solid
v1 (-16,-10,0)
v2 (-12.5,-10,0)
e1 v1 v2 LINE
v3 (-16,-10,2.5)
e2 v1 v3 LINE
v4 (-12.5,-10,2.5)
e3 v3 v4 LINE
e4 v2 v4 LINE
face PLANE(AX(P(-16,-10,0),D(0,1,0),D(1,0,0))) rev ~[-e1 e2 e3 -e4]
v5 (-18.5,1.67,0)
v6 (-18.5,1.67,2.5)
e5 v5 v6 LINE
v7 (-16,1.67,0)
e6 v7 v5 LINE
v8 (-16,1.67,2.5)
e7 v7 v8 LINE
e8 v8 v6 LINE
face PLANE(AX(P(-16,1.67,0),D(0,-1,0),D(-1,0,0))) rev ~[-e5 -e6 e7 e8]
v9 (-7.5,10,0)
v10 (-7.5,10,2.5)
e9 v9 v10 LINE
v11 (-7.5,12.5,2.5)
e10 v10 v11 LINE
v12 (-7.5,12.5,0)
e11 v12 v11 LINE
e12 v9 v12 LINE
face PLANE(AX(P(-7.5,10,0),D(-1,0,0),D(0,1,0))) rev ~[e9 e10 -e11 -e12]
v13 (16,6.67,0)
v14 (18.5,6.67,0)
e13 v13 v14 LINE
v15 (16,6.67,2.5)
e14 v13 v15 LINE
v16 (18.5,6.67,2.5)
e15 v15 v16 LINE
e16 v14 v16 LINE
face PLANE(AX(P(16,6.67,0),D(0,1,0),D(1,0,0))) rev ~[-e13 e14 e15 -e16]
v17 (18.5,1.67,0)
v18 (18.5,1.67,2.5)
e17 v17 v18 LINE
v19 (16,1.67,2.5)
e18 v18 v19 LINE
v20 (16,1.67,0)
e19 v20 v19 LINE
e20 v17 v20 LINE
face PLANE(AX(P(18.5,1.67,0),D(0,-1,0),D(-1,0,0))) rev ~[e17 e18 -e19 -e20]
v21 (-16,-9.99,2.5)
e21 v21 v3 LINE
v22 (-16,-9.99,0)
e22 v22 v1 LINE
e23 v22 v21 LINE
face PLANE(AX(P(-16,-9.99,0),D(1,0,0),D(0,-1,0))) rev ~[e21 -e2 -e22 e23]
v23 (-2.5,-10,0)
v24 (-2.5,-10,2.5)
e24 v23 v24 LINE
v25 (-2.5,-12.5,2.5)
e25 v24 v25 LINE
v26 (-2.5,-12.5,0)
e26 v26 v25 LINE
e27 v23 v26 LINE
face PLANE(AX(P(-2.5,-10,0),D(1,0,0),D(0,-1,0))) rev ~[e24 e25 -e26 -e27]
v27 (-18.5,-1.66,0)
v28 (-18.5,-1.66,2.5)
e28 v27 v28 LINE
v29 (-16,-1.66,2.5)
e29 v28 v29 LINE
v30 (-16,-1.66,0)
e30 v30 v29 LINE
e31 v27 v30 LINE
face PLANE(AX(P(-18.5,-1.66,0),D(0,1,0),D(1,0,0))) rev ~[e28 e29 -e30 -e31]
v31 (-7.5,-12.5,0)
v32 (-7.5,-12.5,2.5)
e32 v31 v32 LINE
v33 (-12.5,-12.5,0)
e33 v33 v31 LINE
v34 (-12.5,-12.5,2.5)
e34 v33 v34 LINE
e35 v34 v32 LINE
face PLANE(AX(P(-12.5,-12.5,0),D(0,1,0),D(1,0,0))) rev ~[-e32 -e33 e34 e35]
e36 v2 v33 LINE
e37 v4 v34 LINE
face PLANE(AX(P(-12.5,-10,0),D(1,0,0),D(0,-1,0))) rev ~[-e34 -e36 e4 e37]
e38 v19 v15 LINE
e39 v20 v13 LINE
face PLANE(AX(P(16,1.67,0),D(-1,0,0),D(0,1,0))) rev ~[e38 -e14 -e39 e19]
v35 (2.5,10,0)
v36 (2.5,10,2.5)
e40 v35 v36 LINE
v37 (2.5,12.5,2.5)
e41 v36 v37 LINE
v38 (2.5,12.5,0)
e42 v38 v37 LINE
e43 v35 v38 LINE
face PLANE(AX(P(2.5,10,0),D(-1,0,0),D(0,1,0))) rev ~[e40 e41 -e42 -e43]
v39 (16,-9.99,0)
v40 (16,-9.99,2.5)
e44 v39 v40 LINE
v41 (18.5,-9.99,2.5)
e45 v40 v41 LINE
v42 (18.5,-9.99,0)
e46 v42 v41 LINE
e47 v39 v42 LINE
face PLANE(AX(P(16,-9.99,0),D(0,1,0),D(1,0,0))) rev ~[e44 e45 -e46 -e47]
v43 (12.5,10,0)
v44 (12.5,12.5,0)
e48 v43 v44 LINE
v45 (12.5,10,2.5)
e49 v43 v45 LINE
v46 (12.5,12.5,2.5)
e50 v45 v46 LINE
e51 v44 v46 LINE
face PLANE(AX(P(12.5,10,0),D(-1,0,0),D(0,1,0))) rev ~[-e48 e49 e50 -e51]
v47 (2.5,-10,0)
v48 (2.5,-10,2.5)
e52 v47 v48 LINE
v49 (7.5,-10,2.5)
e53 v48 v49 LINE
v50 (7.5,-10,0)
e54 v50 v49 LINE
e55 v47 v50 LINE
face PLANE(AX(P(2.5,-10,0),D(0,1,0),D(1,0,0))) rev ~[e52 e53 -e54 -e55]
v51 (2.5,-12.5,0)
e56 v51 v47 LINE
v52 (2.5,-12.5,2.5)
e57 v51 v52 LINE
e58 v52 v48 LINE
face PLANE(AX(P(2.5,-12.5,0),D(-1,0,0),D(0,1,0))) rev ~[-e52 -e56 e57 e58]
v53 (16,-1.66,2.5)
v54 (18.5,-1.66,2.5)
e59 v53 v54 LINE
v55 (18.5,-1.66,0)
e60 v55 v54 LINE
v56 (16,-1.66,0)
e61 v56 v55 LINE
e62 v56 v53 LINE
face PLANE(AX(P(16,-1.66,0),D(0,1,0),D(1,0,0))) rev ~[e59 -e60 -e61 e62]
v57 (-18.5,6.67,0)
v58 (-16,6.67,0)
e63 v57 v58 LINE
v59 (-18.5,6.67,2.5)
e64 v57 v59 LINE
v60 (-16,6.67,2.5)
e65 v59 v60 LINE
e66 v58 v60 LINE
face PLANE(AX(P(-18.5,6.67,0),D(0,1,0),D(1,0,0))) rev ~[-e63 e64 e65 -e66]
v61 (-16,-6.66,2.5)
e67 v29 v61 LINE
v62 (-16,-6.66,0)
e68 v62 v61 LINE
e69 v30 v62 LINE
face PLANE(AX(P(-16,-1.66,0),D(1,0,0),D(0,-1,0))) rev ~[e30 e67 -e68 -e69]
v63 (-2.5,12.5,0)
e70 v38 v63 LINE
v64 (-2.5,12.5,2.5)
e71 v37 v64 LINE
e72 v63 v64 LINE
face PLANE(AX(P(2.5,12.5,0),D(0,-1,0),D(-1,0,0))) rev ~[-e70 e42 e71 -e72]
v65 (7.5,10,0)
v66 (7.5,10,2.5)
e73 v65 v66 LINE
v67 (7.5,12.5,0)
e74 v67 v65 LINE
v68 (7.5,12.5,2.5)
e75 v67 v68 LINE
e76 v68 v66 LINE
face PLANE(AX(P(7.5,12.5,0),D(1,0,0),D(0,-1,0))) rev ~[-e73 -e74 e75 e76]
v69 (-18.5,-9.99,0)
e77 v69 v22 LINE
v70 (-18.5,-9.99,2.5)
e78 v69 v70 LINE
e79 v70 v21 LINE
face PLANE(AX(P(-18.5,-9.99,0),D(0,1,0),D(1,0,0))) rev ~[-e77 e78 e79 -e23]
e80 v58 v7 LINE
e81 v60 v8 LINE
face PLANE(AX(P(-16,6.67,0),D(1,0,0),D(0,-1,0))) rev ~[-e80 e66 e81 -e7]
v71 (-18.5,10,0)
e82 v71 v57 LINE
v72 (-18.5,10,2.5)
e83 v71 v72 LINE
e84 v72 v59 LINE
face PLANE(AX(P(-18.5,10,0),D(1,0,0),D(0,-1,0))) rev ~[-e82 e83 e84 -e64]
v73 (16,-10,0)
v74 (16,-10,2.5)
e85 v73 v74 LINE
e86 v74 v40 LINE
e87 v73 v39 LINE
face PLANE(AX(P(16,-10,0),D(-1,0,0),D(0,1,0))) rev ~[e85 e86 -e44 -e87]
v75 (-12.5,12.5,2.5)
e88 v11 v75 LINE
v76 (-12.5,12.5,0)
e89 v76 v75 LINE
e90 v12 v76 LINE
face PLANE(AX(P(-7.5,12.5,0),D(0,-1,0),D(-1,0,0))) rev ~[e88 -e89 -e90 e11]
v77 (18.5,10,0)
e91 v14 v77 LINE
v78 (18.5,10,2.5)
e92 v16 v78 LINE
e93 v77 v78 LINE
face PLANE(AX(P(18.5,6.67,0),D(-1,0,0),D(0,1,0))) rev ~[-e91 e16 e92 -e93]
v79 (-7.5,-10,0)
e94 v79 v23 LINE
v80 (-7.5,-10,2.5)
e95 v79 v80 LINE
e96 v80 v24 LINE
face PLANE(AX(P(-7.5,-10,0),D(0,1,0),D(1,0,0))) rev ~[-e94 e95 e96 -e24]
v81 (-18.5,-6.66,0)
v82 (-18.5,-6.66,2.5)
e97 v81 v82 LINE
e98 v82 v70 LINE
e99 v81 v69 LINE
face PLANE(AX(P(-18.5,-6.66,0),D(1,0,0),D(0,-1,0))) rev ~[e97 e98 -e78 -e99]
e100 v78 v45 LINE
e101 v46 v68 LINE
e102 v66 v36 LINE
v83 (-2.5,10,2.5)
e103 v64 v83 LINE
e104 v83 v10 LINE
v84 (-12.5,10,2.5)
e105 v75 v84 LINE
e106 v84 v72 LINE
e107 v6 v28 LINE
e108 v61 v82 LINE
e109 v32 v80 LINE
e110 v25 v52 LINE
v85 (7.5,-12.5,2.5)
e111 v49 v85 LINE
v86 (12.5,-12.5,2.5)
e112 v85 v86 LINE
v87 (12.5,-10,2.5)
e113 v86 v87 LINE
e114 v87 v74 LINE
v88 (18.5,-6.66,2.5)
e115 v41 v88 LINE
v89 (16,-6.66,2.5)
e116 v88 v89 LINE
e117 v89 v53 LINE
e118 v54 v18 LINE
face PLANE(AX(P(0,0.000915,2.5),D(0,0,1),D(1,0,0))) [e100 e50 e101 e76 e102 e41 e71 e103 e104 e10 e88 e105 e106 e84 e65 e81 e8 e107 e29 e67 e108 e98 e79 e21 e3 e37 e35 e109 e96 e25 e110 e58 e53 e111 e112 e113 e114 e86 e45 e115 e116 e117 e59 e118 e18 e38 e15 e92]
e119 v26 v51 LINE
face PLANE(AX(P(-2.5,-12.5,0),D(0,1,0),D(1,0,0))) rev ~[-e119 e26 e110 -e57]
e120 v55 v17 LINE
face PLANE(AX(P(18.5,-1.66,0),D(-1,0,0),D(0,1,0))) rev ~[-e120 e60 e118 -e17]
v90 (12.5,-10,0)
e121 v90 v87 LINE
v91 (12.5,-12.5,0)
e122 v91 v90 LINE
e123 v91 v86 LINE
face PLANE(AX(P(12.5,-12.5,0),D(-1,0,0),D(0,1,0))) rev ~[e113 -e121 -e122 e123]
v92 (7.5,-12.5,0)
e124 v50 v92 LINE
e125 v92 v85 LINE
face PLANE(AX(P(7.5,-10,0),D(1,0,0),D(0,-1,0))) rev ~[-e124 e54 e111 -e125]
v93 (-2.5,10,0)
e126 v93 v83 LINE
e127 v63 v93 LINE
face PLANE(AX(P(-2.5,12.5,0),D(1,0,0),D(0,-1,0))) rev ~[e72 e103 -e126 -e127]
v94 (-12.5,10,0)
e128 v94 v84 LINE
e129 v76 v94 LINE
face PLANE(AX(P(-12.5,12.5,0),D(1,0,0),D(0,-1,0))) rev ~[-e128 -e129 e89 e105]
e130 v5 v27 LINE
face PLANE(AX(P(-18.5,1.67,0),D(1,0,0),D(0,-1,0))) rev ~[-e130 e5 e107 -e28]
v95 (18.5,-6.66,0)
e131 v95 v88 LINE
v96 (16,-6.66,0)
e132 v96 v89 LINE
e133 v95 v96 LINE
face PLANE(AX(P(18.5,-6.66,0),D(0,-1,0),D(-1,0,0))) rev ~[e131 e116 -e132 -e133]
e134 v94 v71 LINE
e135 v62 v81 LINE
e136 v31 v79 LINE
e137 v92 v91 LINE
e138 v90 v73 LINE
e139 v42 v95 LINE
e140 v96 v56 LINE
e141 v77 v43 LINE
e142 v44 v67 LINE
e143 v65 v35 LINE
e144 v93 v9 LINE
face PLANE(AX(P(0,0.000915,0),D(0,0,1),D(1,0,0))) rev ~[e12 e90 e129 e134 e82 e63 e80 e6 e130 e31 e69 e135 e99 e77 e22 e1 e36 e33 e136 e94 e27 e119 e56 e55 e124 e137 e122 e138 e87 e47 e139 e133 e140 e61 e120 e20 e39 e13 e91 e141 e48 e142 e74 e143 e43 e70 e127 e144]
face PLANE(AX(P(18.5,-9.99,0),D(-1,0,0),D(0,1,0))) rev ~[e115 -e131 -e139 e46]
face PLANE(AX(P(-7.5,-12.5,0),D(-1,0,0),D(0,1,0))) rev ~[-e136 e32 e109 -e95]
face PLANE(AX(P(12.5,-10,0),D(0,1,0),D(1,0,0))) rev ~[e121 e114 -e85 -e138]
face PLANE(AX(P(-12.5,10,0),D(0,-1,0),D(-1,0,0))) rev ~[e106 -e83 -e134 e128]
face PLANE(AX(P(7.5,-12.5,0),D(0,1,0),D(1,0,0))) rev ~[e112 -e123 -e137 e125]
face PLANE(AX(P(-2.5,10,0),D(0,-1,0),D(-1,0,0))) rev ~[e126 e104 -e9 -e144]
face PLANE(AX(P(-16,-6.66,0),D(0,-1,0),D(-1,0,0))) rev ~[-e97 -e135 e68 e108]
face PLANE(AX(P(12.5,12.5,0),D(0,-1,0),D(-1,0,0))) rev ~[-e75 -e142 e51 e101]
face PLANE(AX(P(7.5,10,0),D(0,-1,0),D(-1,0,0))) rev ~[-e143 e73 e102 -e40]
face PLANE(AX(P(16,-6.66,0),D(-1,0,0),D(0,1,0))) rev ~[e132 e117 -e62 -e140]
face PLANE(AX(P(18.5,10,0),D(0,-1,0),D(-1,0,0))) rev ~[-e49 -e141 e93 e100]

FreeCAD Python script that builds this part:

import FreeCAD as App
import Part
import Sketcher
from FreeCAD import Vector
Q = App.Units.Quantity

doc = App.newDocument("Part")
body = doc.addObject("PartDesign::Body", "Body")

# Sketch on XY plane
sketch1 = body.newObject("Sketcher::SketchObject", "Sketch")
sketch1.AttachmentSupport = (doc.getObject("XY_Plane"), [""])
sketch1.MapMode = "FlatFace"
sketch1.addGeometry([
    Part.LineSegment(Vector(2.5, -12.5, 0), Vector(2.5, -10, 0)),  # 0
    Part.LineSegment(Vector(2.5, -10, 0), Vector(7.5, -10, 0)),  # 1
    Part.LineSegment(Vector(7.5, -10, 0), Vector(7.5, -12.5, 0)),  # 2
    Part.LineSegment(Vector(7.5, -12.5, 0), Vector(12.5, -12.5, 0)),  # 3
    Part.LineSegment(Vector(12.5, -12.5, 0), Vector(12.5, -10, 0)),  # 4
    Part.LineSegment(Vector(12.5, -10, 0), Vector(16, -10, 0)),  # 5
    Part.LineSegment(Vector(16, -10, 0), Vector(16, -9.99, 0)),  # 6
    Part.LineSegment(Vector(16, -9.99, 0), Vector(18.5, -9.99, 0)),  # 7
    Part.LineSegment(Vector(18.5, -9.99, 0), Vector(18.5, -6.66, 0)),  # 8
    Part.LineSegment(Vector(18.5, -6.66, 0), Vector(16, -6.66, 0)),  # 9
    Part.LineSegment(Vector(16, -6.66, 0), Vector(16, -1.66, 0)),  # 10
    Part.LineSegment(Vector(16, -1.66, 0), Vector(18.5, -1.66, 0)),  # 11
    Part.LineSegment(Vector(18.5, -1.66, 0), Vector(18.5, 1.67, 0)),  # 12
    Part.LineSegment(Vector(18.5, 1.67, 0), Vector(16, 1.67, 0)),  # 13
    Part.LineSegment(Vector(16, 1.67, 0), Vector(16, 6.67, 0)),  # 14
    Part.LineSegment(Vector(16, 6.67, 0), Vector(18.5, 6.67, 0)),  # 15
    Part.LineSegment(Vector(18.5, 6.67, 0), Vector(18.5, 10, 0)),  # 16
    Part.LineSegment(Vector(18.5, 10, 0), Vector(12.5, 10, 0)),  # 17
    Part.LineSegment(Vector(12.5, 10, 0), Vector(12.5, 12.5, 0)),  # 18
    Part.LineSegment(Vector(12.5, 12.5, 0), Vector(7.5, 12.5, 0)),  # 19
    Part.LineSegment(Vector(7.5, 12.5, 0), Vector(7.5, 10, 0)),  # 20
    Part.LineSegment(Vector(7.5, 10, 0), Vector(2.5, 10, 0)),  # 21
    Part.LineSegment(Vector(2.5, 10, 0), Vector(2.5, 12.5, 0)),  # 22
    Part.LineSegment(Vector(2.5, 12.5, 0), Vector(-2.5, 12.5, 0)),  # 23
    Part.LineSegment(Vector(-2.5, 12.5, 0), Vector(-2.5, 10, 0)),  # 24
    Part.LineSegment(Vector(-2.5, 10, 0), Vector(-7.5, 10, 0)),  # 25
    Part.LineSegment(Vector(-7.5, 10, 0), Vector(-7.5, 12.5, 0)),  # 26
    Part.LineSegment(Vector(-7.5, 12.5, 0), Vector(-12.5, 12.5, 0)),  # 27
    Part.LineSegment(Vector(-12.5, 12.5, 0), Vector(-12.5, 10, 0)),  # 28
    Part.LineSegment(Vector(-12.5, 10, 0), Vector(-18.5, 10, 0)),  # 29
    Part.LineSegment(Vector(-18.5, 10, 0), Vector(-18.5, 6.67, 0)),  # 30
    Part.LineSegment(Vector(-18.5, 6.67, 0), Vector(-16, 6.67, 0)),  # 31
    Part.LineSegment(Vector(-16, 6.67, 0), Vector(-16, 1.67, 0)),  # 32
    Part.LineSegment(Vector(-16, 1.67, 0), Vector(-18.5, 1.67, 0)),  # 33
    Part.LineSegment(Vector(-18.5, 1.67, 0), Vector(-18.5, -1.66, 0)),  # 34
    Part.LineSegment(Vector(-18.5, -1.66, 0), Vector(-16, -1.66, 0)),  # 35
    Part.LineSegment(Vector(-16, -1.66, 0), Vector(-16, -6.66, 0)),  # 36
    Part.LineSegment(Vector(-16, -6.66, 0), Vector(-18.5, -6.66, 0)),  # 37
    Part.LineSegment(Vector(-18.5, -6.66, 0), Vector(-18.5, -9.99, 0)),  # 38
    Part.LineSegment(Vector(-18.5, -9.99, 0), Vector(-16, -9.99, 0)),  # 39
    Part.LineSegment(Vector(-16, -9.99, 0), Vector(-16, -10, 0)),  # 40
    Part.LineSegment(Vector(-16, -10, 0), Vector(-12.5, -10, 0)),  # 41
    Part.LineSegment(Vector(-12.5, -10, 0), Vector(-12.5, -12.5, 0)),  # 42
    Part.LineSegment(Vector(-12.5, -12.5, 0), Vector(-7.5, -12.5, 0)),  # 43
    Part.LineSegment(Vector(-7.5, -12.5, 0), Vector(-7.5, -10, 0)),  # 44
    Part.LineSegment(Vector(-7.5, -10, 0), Vector(-2.5, -10, 0)),  # 45
    Part.LineSegment(Vector(-2.5, -10, 0), Vector(-2.5, -12.5, 0)),  # 46
    Part.LineSegment(Vector(-2.5, -12.5, 0), Vector(2.5, -12.5, 0)),  # 47
], False)
sketch1.addConstraint([
    Sketcher.Constraint("Coincident", 0, 2, 1, 1),
    Sketcher.Constraint("Coincident", 1, 2, 2, 1),
    Sketcher.Constraint("Coincident", 2, 2, 3, 1),
    Sketcher.Constraint("Coincident", 3, 2, 4, 1),
    Sketcher.Constraint("Coincident", 4, 2, 5, 1),
    Sketcher.Constraint("Coincident", 5, 2, 6, 1),
    Sketcher.Constraint("Coincident", 6, 2, 7, 1),
    Sketcher.Constraint("Coincident", 7, 2, 8, 1),
    Sketcher.Constraint("Coincident", 8, 2, 9, 1),
    Sketcher.Constraint("Coincident", 9, 2, 10, 1),
    Sketcher.Constraint("Coincident", 10, 2, 11, 1),
    Sketcher.Constraint("Coincident", 11, 2, 12, 1),
    Sketcher.Constraint("Coincident", 12, 2, 13, 1),
    Sketcher.Constraint("Coincident", 13, 2, 14, 1),
    Sketcher.Constraint("Coincident", 14, 2, 15, 1),
    Sketcher.Constraint("Coincident", 15, 2, 16, 1),
    Sketcher.Constraint("Coincident", 16, 2, 17, 1),
    Sketcher.Constraint("Coincident", 17, 2, 18, 1),
    Sketcher.Constraint("Coincident", 18, 2, 19, 1),
    Sketcher.Constraint("Coincident", 19, 2, 20, 1),
    Sketcher.Constraint("Coincident", 20, 2, 21, 1),
    Sketcher.Constraint("Coincident", 21, 2, 22, 1),
    Sketcher.Constraint("Coincident", 22, 2, 23, 1),
    Sketcher.Constraint("Coincident", 23, 2, 24, 1),
    Sketcher.Constraint("Coincident", 24, 2, 25, 1),
    Sketcher.Constraint("Coincident", 25, 2, 26, 1),
    Sketcher.Constraint("Coincident", 26, 2, 27, 1),
    Sketcher.Constraint("Coincident", 27, 2, 28, 1),
    Sketcher.Constraint("Coincident", 28, 2, 29, 1),
    Sketcher.Constraint("Coincident", 29, 2, 30, 1),
    Sketcher.Constraint("Coincident", 30, 2, 31, 1),
    Sketcher.Constraint("Coincident", 31, 2, 32, 1),
    Sketcher.Constraint("Coincident", 32, 2, 33, 1),
    Sketcher.Constraint("Coincident", 33, 2, 34, 1),
    Sketcher.Constraint("Coincident", 34, 2, 35, 1),
    Sketcher.Constraint("Coincident", 35, 2, 36, 1),
    Sketcher.Constraint("Coincident", 36, 2, 37, 1),
    Sketcher.Constraint("Coincident", 37, 2, 38, 1),
    Sketcher.Constraint("Coincident", 38, 2, 39, 1),
    Sketcher.Constraint("Coincident", 39, 2, 40, 1),
    Sketcher.Constraint("Coincident", 40, 2, 41, 1),
    Sketcher.Constraint("Coincident", 41, 2, 42, 1),
    Sketcher.Constraint("Coincident", 42, 2, 43, 1),
    Sketcher.Constraint("Coincident", 43, 2, 44, 1),
    Sketcher.Constraint("Coincident", 44, 2, 45, 1),
    Sketcher.Constraint("Coincident", 45, 2, 46, 1),
    Sketcher.Constraint("Coincident", 46, 2, 47, 1),
    Sketcher.Constraint("Coincident", 47, 2, 0, 1),
    Sketcher.Constraint("Vertical", 0),
    Sketcher.Constraint("Horizontal", 1),
    Sketcher.Constraint("Vertical", 2),
    Sketcher.Constraint("Horizontal", 3),
    Sketcher.Constraint("Vertical", 4),
    Sketcher.Constraint("Horizontal", 5),
    Sketcher.Constraint("Vertical", 6),
    Sketcher.Constraint("Horizontal", 7),
    Sketcher.Constraint("Vertical", 8),
    Sketcher.Constraint("Horizontal", 9),
    Sketcher.Constraint("Vertical", 10),
    Sketcher.Constraint("Horizontal", 11),
    Sketcher.Constraint("Vertical", 12),
    Sketcher.Constraint("Horizontal", 13),
    Sketcher.Constraint("Vertical", 14),
    Sketcher.Constraint("Horizontal", 15),
    Sketcher.Constraint("Vertical", 16),
    Sketcher.Constraint("Horizontal", 17),
    Sketcher.Constraint("Vertical", 18),
    Sketcher.Constraint("Horizontal", 19),
    Sketcher.Constraint("Vertical", 20),
    Sketcher.Constraint("Horizontal", 21),
    Sketcher.Constraint("Vertical", 22),
    Sketcher.Constraint("Horizontal", 23),
    Sketcher.Constraint("Vertical", 24),
    Sketcher.Constraint("Horizontal", 25),
    Sketcher.Constraint("Vertical", 26),
    Sketcher.Constraint("Horizontal", 27),
    Sketcher.Constraint("Vertical", 28),
    Sketcher.Constraint("Horizontal", 29),
    Sketcher.Constraint("Vertical", 30),
    Sketcher.Constraint("Horizontal", 31),
    Sketcher.Constraint("Vertical", 32),
    Sketcher.Constraint("Horizontal", 33),
    Sketcher.Constraint("Vertical", 34),
    Sketcher.Constraint("Horizontal", 35),
    Sketcher.Constraint("Vertical", 36),
    Sketcher.Constraint("Horizontal", 37),
    Sketcher.Constraint("Vertical", 38),
    Sketcher.Constraint("Horizontal", 39),
    Sketcher.Constraint("Vertical", 40),
    Sketcher.Constraint("Horizontal", 41),
    Sketcher.Constraint("Vertical", 42),
    Sketcher.Constraint("Horizontal", 43),
    Sketcher.Constraint("Vertical", 44),
    Sketcher.Constraint("Horizontal", 45),
    Sketcher.Constraint("Vertical", 46),
    Sketcher.Constraint("Horizontal", 47),
    Sketcher.Constraint("Symmetric", 0, 2, 24, 2, -1, 1),
    Sketcher.Constraint("Symmetric", 2, 2, 26, 2, -1, 1),
    Sketcher.Constraint("Symmetric", 4, 2, 28, 2, -1, 1),
    Sketcher.Constraint("Symmetric", 17, 2, 41, 2, -1, 1),
    Sketcher.Constraint("Symmetric", 19, 2, 43, 2, -1, 1),
    Sketcher.Constraint("Symmetric", 21, 2, 45, 2, -1, 1),
    Sketcher.Constraint("Symmetric", 21, 2, 24, 2, -2),
    Sketcher.Constraint("Symmetric", 19, 2, 26, 2, -2),
    Sketcher.Constraint("Symmetric", 17, 2, 28, 2, -2),
    Sketcher.Constraint("Symmetric", 15, 2, 30, 2, -2),
    Sketcher.Constraint("Symmetric", 13, 2, 32, 2, -2),
    Sketcher.Constraint("Symmetric", 11, 2, 34, 2, -2),
    Sketcher.Constraint("Symmetric", 9, 2, 36, 2, -2),
    Sketcher.Constraint("Symmetric", 7, 2, 38, 2, -2),
    Sketcher.Constraint("Horizontal", 1, 2, 4, 2),
    Sketcher.Constraint("Horizontal", 19, 2, 22, 2),
    Sketcher.Constraint("Horizontal", 43, 2, 46, 2),
    Sketcher.Constraint("Vertical", 6, 2, 9, 2),
    Sketcher.Constraint("Vertical", 8, 2, 11, 2),
    Sketcher.Constraint("Vertical", 10, 2, 13, 2),
    Sketcher.Constraint("Vertical", 12, 2, 15, 2),
    Sketcher.Constraint("Vertical", 36, 2, 39, 2),
    Sketcher.Constraint("Equal", 1, 3),
    Sketcher.Constraint("Equal", 21, 23),
    Sketcher.Constraint("Equal", 39, 0),
    Sketcher.Constraint("Equal", 47, 10),
    Sketcher.Constraint("Equal", 8, 12),
    Sketcher.Constraint("Equal", 10, 14),
    Sketcher.Constraint("Equal", 12, 16),
    Sketcher.Constraint("DistanceX", 1, 1, 1, 2, Q("5 mm")),
    Sketcher.Constraint("DistanceX", 17, 2, 17, 1, Q("6 mm")),
    Sketcher.Constraint("DistanceX", 5, 1, 5, 2, Q("3.5 mm")),
    Sketcher.Constraint("DistanceY", 0, 2, -1, 1, Q("10 mm")),
    Sketcher.Constraint("DistanceY", 6, 1, 6, 2, Q("0.01 mm")),
])
pad1 = body.newObject("PartDesign::Pad", "Pad")
pad1.Profile = sketch1
pad1.Length = 2.5

doc.recompute()
